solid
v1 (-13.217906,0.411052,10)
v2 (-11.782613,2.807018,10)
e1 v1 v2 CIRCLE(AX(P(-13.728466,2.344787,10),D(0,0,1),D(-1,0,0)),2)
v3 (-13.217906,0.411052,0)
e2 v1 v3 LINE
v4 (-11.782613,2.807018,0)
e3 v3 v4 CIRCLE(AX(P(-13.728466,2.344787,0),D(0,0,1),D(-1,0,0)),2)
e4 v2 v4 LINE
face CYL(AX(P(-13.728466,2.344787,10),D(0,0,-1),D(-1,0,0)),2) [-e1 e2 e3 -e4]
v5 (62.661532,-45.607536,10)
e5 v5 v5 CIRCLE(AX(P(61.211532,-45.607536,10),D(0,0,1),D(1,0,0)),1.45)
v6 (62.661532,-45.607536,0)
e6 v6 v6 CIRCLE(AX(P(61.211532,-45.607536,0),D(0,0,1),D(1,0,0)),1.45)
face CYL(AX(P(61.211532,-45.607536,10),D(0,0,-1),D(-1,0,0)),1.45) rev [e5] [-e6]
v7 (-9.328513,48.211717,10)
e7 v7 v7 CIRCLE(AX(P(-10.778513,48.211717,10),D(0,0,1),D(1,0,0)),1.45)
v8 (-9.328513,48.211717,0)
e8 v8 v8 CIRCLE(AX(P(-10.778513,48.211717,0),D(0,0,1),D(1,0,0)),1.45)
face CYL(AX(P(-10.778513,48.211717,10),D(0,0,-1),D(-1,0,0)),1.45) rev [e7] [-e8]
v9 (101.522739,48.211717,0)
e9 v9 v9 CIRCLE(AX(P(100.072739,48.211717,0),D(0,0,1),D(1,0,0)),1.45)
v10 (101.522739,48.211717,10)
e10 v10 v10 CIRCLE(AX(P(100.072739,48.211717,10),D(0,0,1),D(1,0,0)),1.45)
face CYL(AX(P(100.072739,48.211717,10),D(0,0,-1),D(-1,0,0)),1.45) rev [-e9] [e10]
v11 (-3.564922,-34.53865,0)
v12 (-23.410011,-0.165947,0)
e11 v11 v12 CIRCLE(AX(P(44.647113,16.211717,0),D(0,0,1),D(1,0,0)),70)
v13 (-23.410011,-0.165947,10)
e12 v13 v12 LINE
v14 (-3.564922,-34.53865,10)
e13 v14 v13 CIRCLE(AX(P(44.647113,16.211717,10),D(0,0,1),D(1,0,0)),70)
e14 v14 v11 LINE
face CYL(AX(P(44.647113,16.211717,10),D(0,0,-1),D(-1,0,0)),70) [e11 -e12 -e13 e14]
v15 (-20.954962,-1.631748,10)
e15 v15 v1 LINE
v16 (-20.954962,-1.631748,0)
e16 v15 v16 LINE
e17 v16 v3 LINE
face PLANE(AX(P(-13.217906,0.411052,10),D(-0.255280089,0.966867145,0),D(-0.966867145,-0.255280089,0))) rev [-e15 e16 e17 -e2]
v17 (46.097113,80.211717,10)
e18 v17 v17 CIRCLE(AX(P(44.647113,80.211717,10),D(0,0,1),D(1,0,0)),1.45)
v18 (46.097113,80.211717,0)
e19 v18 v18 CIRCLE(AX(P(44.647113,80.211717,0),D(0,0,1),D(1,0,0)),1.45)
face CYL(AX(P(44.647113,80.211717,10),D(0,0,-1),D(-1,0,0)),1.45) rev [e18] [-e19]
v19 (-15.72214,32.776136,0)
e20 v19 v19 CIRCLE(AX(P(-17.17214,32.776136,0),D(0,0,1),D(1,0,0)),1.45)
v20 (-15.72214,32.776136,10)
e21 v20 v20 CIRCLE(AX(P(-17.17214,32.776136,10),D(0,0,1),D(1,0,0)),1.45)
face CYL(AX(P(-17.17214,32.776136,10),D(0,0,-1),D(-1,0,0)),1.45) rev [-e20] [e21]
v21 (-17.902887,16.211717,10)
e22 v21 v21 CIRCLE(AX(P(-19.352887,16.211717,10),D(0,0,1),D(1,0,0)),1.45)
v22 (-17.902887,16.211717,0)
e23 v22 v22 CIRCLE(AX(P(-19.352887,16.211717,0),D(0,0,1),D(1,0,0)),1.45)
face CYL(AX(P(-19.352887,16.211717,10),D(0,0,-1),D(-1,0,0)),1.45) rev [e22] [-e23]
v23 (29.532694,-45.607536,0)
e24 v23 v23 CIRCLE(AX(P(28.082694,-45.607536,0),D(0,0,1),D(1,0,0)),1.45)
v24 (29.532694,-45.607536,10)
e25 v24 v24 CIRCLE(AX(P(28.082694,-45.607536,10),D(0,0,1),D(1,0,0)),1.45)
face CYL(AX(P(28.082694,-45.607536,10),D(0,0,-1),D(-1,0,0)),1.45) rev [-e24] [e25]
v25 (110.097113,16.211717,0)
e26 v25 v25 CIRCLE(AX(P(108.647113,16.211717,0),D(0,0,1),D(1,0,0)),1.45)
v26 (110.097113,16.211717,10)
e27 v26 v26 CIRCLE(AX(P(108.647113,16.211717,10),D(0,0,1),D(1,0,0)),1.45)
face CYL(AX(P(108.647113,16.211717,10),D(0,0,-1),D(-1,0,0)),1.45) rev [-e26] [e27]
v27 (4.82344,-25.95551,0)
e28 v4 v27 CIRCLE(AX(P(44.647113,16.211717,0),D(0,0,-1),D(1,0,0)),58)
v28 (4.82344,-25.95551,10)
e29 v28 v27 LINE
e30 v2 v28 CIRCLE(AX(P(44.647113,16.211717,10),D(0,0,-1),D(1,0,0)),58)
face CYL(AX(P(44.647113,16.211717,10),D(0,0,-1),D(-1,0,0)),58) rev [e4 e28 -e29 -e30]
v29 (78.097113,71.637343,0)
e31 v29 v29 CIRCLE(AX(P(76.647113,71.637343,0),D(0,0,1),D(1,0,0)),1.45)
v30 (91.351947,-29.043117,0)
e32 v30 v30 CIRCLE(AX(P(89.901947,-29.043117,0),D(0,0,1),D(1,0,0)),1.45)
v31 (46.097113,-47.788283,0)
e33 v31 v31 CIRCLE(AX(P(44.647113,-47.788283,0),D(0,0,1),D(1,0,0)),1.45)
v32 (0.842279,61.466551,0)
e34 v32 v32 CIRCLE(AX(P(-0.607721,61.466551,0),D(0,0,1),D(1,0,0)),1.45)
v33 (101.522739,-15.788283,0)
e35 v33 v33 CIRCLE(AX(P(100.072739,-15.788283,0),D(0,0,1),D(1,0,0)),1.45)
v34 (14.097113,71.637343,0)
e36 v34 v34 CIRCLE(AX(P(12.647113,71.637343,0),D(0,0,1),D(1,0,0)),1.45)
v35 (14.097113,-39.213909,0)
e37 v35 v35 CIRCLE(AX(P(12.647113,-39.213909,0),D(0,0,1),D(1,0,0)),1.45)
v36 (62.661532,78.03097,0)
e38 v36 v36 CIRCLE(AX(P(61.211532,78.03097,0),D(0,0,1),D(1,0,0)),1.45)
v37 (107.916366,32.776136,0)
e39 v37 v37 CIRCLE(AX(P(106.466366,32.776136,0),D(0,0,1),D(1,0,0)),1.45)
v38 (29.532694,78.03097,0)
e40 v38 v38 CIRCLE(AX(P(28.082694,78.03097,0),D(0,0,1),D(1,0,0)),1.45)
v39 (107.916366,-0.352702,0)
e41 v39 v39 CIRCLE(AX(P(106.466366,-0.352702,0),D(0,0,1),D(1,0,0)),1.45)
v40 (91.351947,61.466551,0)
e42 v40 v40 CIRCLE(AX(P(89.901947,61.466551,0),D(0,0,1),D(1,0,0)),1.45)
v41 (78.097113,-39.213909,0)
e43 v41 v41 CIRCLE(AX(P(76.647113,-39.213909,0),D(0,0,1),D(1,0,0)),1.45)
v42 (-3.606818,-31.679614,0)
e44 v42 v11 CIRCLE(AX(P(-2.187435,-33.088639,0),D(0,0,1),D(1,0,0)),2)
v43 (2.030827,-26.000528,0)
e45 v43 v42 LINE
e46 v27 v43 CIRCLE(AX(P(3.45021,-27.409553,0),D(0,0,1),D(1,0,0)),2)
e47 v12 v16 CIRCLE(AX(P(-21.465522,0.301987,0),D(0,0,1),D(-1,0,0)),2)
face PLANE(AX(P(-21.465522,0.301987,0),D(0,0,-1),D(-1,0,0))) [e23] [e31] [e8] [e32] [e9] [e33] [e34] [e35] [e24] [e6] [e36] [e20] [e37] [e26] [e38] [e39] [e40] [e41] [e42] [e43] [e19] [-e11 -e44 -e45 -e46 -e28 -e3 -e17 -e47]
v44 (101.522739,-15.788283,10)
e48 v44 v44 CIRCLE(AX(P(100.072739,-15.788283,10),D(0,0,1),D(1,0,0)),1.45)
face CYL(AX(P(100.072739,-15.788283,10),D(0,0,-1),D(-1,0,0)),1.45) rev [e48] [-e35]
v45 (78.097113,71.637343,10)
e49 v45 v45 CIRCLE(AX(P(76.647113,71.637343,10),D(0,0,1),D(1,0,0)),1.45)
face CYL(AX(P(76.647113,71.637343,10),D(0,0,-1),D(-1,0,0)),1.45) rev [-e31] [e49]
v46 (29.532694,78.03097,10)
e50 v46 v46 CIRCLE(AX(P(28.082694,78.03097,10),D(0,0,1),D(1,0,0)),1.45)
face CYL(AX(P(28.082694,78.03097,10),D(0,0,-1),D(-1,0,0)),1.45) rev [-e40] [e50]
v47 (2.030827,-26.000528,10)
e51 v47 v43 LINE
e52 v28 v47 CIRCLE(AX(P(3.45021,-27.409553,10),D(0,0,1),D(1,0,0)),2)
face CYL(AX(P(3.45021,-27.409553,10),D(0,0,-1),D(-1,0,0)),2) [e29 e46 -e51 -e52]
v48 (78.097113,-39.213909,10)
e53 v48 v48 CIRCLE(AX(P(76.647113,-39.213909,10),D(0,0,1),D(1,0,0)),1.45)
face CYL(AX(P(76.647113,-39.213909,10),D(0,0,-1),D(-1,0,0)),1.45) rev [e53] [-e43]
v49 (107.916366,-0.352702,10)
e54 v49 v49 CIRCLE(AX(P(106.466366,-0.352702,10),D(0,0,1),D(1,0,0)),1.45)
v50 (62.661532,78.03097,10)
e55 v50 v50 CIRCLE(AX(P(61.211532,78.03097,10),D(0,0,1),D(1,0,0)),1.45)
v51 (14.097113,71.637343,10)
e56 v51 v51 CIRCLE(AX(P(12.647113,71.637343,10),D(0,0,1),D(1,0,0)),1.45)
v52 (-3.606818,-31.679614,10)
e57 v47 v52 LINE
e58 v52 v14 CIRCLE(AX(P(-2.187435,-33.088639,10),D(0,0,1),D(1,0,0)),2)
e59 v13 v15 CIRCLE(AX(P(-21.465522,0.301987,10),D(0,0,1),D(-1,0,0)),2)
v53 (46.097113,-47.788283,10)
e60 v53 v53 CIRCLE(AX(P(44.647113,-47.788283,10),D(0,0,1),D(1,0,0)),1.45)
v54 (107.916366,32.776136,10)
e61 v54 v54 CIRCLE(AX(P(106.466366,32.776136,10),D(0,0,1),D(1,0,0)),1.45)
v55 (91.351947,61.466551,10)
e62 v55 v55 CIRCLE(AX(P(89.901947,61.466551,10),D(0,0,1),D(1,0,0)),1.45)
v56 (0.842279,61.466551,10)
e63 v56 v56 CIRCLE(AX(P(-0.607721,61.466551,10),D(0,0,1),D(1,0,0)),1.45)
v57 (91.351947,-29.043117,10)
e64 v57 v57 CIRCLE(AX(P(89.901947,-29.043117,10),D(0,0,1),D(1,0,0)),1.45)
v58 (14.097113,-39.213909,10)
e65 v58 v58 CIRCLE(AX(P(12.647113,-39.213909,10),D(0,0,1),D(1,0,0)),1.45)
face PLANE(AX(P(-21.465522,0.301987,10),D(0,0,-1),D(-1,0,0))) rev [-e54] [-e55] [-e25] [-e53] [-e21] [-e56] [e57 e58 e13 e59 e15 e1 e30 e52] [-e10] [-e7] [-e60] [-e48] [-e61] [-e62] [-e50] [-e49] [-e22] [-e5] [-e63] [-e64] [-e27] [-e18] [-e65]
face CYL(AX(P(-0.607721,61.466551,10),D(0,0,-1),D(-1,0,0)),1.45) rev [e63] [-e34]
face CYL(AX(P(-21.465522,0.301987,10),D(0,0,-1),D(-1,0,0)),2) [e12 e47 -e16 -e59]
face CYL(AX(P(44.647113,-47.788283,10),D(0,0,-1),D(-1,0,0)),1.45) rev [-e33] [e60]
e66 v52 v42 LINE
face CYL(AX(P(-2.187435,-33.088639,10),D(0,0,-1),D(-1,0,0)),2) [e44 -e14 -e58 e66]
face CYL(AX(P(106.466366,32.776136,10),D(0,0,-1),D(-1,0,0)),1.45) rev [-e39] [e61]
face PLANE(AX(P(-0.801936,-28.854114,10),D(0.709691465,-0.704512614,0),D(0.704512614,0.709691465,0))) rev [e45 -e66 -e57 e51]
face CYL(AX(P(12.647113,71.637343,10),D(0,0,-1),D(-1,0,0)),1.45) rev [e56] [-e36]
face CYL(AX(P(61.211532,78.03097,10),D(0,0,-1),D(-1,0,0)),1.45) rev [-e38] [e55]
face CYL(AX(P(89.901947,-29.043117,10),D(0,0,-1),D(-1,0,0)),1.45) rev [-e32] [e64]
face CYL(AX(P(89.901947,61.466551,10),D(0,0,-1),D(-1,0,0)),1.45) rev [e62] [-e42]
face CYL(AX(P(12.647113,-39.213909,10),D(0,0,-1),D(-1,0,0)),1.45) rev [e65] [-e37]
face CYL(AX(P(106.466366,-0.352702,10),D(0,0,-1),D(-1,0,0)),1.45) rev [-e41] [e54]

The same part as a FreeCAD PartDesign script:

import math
import FreeCAD as App
import Part
import Sketcher

V = App.Vector

doc = App.newDocument("Part")
params = doc.addObject("Spreadsheet::Sheet", "Params")
for row, (alias, value) in enumerate([
    ("sketch1_radius", "2 mm"),
    ("sketch1_radius2", "58 mm"),
    ("sketch1_radius3", "70 mm"),
    ("sketch1_diameter", "2.9 mm"),
    ("pad1_length", "10 mm"),
], start=1):
    params.set(f"A{row}", alias)
    params.set(f"B{row}", "=" + value)
    params.setAlias(f"B{row}", alias)

body = doc.addObject("PartDesign::Body", "Body")

# Sketch on XY plane
sketch1 = doc.addObject("Sketcher::SketchObject", "Sketch")
body.addObject(sketch1)
sketch1.AttachmentSupport = (doc.XY_Plane, [""])
sketch1.MapMode = "FlatFace"
sketch1.addGeometry([
    Part.LineSegment(V(-17.105565, -0.615399, 0), V(-13.217906, 0.411052, 0)),  # 0
    Part.ArcOfCircle(Part.Circle(V(-13.728466, 2.344787, 0), V(0, 0, 1), 2), math.radians(-75.209818), math.radians(13.362755)),  # 1
    Part.ArcOfCircle(Part.Circle(V(44.647113, 16.211717, 0), V(0, 0, 1), 58), math.radians(-133.362755), math.radians(193.362755)),  # 2
    Part.ArcOfCircle(Part.Circle(V(3.45021, -27.409553, 0), V(0, 0, 1), 2), math.radians(46.637245), math.radians(135.209818)),  # 3
    Part.LineSegment(V(2.030827, -26.000528, 0), V(-0.801936, -28.854114, 0)),  # 4
    Part.LineSegment(V(-0.801936, -28.854114, 0), V(-3.606818, -31.679614, 0)),  # 5
    Part.ArcOfCircle(Part.Circle(V(-2.187435, -33.088639, 0), V(0, 0, 1), 2), math.radians(135.209818), math.radians(226.469284)),  # 6
    Part.ArcOfCircle(Part.Circle(V(44.647113, 16.211717, 0), V(0, 0, 1), 70), math.radians(-133.530716), math.radians(193.530716)),  # 7
    Part.ArcOfCircle(Part.Circle(V(-21.465522, 0.301987, 0), V(0, 0, 1), 2), math.radians(-166.469284), math.radians(-75.209818)),  # 8
    Part.LineSegment(V(-20.954962, -1.631748, 0), V(-17.105565, -0.615399, 0)),  # 9
    Part.Circle(V(89.901947, -29.043117, 0), V(0, 0, 1), 1.45),  # 10
    Part.Circle(V(61.211532, -45.607536, 0), V(0, 0, 1), 1.45),  # 11
    Part.Circle(V(76.647113, -39.213909, 0), V(0, 0, 1), 1.45),  # 12
    Part.Circle(V(100.072739, -15.788283, 0), V(0, 0, 1), 1.45),  # 13
    Part.Circle(V(106.466366, -0.352702, 0), V(0, 0, 1), 1.45),  # 14
    Part.Circle(V(44.647113, -47.788283, 0), V(0, 0, 1), 1.45),  # 15
    Part.Circle(V(28.082694, -45.607536, 0), V(0, 0, 1), 1.45),  # 16
    Part.Circle(V(12.647113, -39.213909, 0), V(0, 0, 1), 1.45),  # 17
    Part.Circle(V(108.647113, 16.211717, 0), V(0, 0, 1), 1.45),  # 18
    Part.Circle(V(106.466366, 32.776136, 0), V(0, 0, 1), 1.45),  # 19
    Part.Circle(V(100.072739, 48.211717, 0), V(0, 0, 1), 1.45),  # 20
    Part.Circle(V(89.901947, 61.466551, 0), V(0, 0, 1), 1.45),  # 21
    Part.Circle(V(76.647113, 71.637343, 0), V(0, 0, 1), 1.45),  # 22
    Part.Circle(V(61.211532, 78.03097, 0), V(0, 0, 1), 1.45),  # 23
    Part.Circle(V(-19.352887, 16.211717, 0), V(0, 0, 1), 1.45),  # 24
    Part.Circle(V(-17.17214, 32.776136, 0), V(0, 0, 1), 1.45),  # 25
    Part.Circle(V(-10.778513, 48.211717, 0), V(0, 0, 1), 1.45),  # 26
    Part.Circle(V(44.647113, 80.211717, 0), V(0, 0, 1), 1.45),  # 27
    Part.Circle(V(12.647113, 71.637343, 0), V(0, 0, 1), 1.45),  # 28
    Part.Circle(V(28.082694, 78.03097, 0), V(0, 0, 1), 1.45),  # 29
    Part.Circle(V(-0.607721, 61.466551, 0), V(0, 0, 1), 1.45),  # 30
], False)
sketch1.addConstraint([
    Sketcher.Constraint("Tangent", 0, 2, 1, 1),
    Sketcher.Constraint("Tangent", 1, 2, 2, 2),
    Sketcher.Constraint("Tangent", 2, 1, 3, 1),
    Sketcher.Constraint("Tangent", 3, 2, 4, 1),
    Sketcher.Constraint("Coincident", 4, 2, 5, 1),
    Sketcher.Constraint("Tangent", 5, 2, 6, 1),
    Sketcher.Constraint("Tangent", 6, 2, 7, 1),
    Sketcher.Constraint("Tangent", 7, 2, 8, 1),
    Sketcher.Constraint("Tangent", 8, 2, 9, 1),
    Sketcher.Constraint("Coincident", 9, 2, 0, 1),
    Sketcher.Constraint("Coincident", 7, 3, 2, 3),
    Sketcher.Constraint("Equal", 1, 3),
    Sketcher.Constraint("Equal", 3, 6),
    Sketcher.Constraint("Equal", 6, 8),
    Sketcher.Constraint("Equal", 10, 11),
    Sketcher.Constraint("Equal", 11, 12),
    Sketcher.Constraint("Equal", 12, 13),
    Sketcher.Constraint("Equal", 13, 14),
    Sketcher.Constraint("Equal", 14, 15),
    Sketcher.Constraint("Equal", 15, 16),
    Sketcher.Constraint("Equal", 16, 17),
    Sketcher.Constraint("Equal", 17, 18),
    Sketcher.Constraint("Equal", 18, 19),
    Sketcher.Constraint("Equal", 19, 20),
    Sketcher.Constraint("Equal", 20, 21),
    Sketcher.Constraint("Equal", 21, 22),
    Sketcher.Constraint("Equal", 22, 23),
    Sketcher.Constraint("Equal", 23, 24),
    Sketcher.Constraint("Equal", 24, 25),
    Sketcher.Constraint("Equal", 25, 26),
    Sketcher.Constraint("Equal", 26, 27),
    Sketcher.Constraint("Equal", 27, 28),
    Sketcher.Constraint("Equal", 28, 29),
    Sketcher.Constraint("Equal", 29, 30),
    Sketcher.Constraint("Parallel", 4, 5),
    Sketcher.Constraint("Parallel", 0, 9),
    Sketcher.Constraint("Horizontal", 11, 3, 16, 3),
    Sketcher.Constraint("Horizontal", 12, 3, 17, 3),
    Sketcher.Constraint("Horizontal", 7, 3, 18, 3),
    Sketcher.Constraint("Horizontal", 18, 3, 24, 3),
    Sketcher.Constraint("Horizontal", 19, 3, 25, 3),
    Sketcher.Constraint("Horizontal", 20, 3, 26, 3),
    Sketcher.Constraint("Horizontal", 22, 3, 28, 3),
    Sketcher.Constraint("Horizontal", 23, 3, 29, 3),
    Sketcher.Constraint("Horizontal", 21, 3, 30, 3),
    Sketcher.Constraint("Vertical", 7, 3, 15, 3),
    Sketcher.Constraint("Vertical", 14, 3, 19, 3),
    Sketcher.Constraint("Vertical", 13, 3, 20, 3),
    Sketcher.Constraint("Vertical", 10, 3, 21, 3),
    Sketcher.Constraint("Vertical", 12, 3, 22, 3),
    Sketcher.Constraint("Vertical", 11, 3, 23, 3),
    Sketcher.Constraint("Vertical", 15, 3, 27, 3),
    Sketcher.Constraint("Vertical", 17, 3, 28, 3),
    Sketcher.Constraint("Vertical", 16, 3, 29, 3),
    Sketcher.Constraint("Equal", 0, 4),
    Sketcher.Constraint("Equal", 5, 9),
    Sketcher.Constraint("Radius", 1, 2.0),
    Sketcher.Constraint("Radius", 2, 58.0),
    Sketcher.Constraint("Radius", 7, 70.0),
    Sketcher.Constraint("Diameter", 10, 2.9),
    Sketcher.Constraint("DistanceX", 7, 3, 12, 3, 32.0),
    Sketcher.Constraint("DistanceY", 13, 3, 7, 3, 32.0),
    Sketcher.Constraint("DistanceX", 17, 3, 15, 3, 32.0),
    Sketcher.Constraint("DistanceX", 2, 3, 18, 3, 64.0),
    Sketcher.Constraint("DistanceY", 18, 3, 20, 3, 32.0),
    Sketcher.Constraint("DistanceX", 24, 3, 2, 3, 64.0),
    Sketcher.Constraint("DistanceY", 26, 3, 27, 3, 32.0),
    Sketcher.Constraint("DistanceY", 7, 2, 0, 2, 0.576999),
    Sketcher.Constraint("DistanceY", 9, 2, -1, 1, 0.615399),
    Sketcher.Constraint("DistanceY", 8, 3, 1, 3, 2.0428),
    Sketcher.Constraint("DistanceY", 17, 3, 2, 1, 13.258399),
    Sketcher.Constraint("DistanceX", 6, 3, 4, 2, 1.385499),
    Sketcher.Constraint("DistanceY", 5, 2, 4, 2, 2.825501),
    Sketcher.Constraint("DistanceX", -1, 1, 3, 3, 3.45021),
    Sketcher.Constraint("DistanceX", -1, 1, 11, 3, 61.211532),
    Sketcher.Constraint("DistanceX", -1, 1, 13, 3, 100.072739),
    Sketcher.Constraint("DistanceY", -1, 1, 21, 3, 61.466551),
    Sketcher.Constraint("DistanceY", -1, 1, 23, 3, 78.03097),
    Sketcher.Constraint("DistanceX", 25, 3, -1, 1, 17.17214),
    Sketcher.Constraint("DistanceX", 30, 3, -1, 1, 0.607721),
    Sketcher.Constraint("DistanceX", 6, 3, 10, 3, 92.089382),
    Sketcher.Constraint("DistanceY", 11, 3, 10, 3, 16.564419),
    Sketcher.Constraint("DistanceY", 12, 3, 10, 3, 10.170792),
    Sketcher.Constraint("DistanceY", 13, 3, 14, 3, 15.435581),
    Sketcher.Constraint("DistanceX", 10, 3, 14, 3, 16.564419),
    Sketcher.Constraint("DistanceY", 15, 3, 3, 3, 20.378731),
    Sketcher.Constraint("DistanceX", 16, 3, 15, 3, 16.564419),
    Sketcher.Constraint("DistanceY", 18, 3, 19, 3, 16.564419),
    Sketcher.Constraint("DistanceY", 21, 3, 22, 3, 10.170792),
    Sketcher.Constraint("DistanceX", 8, 3, 26, 3, 10.687009),
])
sketch1.setExpression("Constraints[56]", "Params.sketch1_radius")
sketch1.setExpression("Constraints[57]", "Params.sketch1_radius2")
sketch1.setExpression("Constraints[58]", "Params.sketch1_radius3")
sketch1.setExpression("Constraints[59]", "Params.sketch1_diameter")
pad1 = doc.addObject("PartDesign::Pad", "Pad")
body.addObject(pad1)
pad1.Profile = sketch1
pad1.setExpression("Length", "Params.pad1_length")

doc.recompute()
